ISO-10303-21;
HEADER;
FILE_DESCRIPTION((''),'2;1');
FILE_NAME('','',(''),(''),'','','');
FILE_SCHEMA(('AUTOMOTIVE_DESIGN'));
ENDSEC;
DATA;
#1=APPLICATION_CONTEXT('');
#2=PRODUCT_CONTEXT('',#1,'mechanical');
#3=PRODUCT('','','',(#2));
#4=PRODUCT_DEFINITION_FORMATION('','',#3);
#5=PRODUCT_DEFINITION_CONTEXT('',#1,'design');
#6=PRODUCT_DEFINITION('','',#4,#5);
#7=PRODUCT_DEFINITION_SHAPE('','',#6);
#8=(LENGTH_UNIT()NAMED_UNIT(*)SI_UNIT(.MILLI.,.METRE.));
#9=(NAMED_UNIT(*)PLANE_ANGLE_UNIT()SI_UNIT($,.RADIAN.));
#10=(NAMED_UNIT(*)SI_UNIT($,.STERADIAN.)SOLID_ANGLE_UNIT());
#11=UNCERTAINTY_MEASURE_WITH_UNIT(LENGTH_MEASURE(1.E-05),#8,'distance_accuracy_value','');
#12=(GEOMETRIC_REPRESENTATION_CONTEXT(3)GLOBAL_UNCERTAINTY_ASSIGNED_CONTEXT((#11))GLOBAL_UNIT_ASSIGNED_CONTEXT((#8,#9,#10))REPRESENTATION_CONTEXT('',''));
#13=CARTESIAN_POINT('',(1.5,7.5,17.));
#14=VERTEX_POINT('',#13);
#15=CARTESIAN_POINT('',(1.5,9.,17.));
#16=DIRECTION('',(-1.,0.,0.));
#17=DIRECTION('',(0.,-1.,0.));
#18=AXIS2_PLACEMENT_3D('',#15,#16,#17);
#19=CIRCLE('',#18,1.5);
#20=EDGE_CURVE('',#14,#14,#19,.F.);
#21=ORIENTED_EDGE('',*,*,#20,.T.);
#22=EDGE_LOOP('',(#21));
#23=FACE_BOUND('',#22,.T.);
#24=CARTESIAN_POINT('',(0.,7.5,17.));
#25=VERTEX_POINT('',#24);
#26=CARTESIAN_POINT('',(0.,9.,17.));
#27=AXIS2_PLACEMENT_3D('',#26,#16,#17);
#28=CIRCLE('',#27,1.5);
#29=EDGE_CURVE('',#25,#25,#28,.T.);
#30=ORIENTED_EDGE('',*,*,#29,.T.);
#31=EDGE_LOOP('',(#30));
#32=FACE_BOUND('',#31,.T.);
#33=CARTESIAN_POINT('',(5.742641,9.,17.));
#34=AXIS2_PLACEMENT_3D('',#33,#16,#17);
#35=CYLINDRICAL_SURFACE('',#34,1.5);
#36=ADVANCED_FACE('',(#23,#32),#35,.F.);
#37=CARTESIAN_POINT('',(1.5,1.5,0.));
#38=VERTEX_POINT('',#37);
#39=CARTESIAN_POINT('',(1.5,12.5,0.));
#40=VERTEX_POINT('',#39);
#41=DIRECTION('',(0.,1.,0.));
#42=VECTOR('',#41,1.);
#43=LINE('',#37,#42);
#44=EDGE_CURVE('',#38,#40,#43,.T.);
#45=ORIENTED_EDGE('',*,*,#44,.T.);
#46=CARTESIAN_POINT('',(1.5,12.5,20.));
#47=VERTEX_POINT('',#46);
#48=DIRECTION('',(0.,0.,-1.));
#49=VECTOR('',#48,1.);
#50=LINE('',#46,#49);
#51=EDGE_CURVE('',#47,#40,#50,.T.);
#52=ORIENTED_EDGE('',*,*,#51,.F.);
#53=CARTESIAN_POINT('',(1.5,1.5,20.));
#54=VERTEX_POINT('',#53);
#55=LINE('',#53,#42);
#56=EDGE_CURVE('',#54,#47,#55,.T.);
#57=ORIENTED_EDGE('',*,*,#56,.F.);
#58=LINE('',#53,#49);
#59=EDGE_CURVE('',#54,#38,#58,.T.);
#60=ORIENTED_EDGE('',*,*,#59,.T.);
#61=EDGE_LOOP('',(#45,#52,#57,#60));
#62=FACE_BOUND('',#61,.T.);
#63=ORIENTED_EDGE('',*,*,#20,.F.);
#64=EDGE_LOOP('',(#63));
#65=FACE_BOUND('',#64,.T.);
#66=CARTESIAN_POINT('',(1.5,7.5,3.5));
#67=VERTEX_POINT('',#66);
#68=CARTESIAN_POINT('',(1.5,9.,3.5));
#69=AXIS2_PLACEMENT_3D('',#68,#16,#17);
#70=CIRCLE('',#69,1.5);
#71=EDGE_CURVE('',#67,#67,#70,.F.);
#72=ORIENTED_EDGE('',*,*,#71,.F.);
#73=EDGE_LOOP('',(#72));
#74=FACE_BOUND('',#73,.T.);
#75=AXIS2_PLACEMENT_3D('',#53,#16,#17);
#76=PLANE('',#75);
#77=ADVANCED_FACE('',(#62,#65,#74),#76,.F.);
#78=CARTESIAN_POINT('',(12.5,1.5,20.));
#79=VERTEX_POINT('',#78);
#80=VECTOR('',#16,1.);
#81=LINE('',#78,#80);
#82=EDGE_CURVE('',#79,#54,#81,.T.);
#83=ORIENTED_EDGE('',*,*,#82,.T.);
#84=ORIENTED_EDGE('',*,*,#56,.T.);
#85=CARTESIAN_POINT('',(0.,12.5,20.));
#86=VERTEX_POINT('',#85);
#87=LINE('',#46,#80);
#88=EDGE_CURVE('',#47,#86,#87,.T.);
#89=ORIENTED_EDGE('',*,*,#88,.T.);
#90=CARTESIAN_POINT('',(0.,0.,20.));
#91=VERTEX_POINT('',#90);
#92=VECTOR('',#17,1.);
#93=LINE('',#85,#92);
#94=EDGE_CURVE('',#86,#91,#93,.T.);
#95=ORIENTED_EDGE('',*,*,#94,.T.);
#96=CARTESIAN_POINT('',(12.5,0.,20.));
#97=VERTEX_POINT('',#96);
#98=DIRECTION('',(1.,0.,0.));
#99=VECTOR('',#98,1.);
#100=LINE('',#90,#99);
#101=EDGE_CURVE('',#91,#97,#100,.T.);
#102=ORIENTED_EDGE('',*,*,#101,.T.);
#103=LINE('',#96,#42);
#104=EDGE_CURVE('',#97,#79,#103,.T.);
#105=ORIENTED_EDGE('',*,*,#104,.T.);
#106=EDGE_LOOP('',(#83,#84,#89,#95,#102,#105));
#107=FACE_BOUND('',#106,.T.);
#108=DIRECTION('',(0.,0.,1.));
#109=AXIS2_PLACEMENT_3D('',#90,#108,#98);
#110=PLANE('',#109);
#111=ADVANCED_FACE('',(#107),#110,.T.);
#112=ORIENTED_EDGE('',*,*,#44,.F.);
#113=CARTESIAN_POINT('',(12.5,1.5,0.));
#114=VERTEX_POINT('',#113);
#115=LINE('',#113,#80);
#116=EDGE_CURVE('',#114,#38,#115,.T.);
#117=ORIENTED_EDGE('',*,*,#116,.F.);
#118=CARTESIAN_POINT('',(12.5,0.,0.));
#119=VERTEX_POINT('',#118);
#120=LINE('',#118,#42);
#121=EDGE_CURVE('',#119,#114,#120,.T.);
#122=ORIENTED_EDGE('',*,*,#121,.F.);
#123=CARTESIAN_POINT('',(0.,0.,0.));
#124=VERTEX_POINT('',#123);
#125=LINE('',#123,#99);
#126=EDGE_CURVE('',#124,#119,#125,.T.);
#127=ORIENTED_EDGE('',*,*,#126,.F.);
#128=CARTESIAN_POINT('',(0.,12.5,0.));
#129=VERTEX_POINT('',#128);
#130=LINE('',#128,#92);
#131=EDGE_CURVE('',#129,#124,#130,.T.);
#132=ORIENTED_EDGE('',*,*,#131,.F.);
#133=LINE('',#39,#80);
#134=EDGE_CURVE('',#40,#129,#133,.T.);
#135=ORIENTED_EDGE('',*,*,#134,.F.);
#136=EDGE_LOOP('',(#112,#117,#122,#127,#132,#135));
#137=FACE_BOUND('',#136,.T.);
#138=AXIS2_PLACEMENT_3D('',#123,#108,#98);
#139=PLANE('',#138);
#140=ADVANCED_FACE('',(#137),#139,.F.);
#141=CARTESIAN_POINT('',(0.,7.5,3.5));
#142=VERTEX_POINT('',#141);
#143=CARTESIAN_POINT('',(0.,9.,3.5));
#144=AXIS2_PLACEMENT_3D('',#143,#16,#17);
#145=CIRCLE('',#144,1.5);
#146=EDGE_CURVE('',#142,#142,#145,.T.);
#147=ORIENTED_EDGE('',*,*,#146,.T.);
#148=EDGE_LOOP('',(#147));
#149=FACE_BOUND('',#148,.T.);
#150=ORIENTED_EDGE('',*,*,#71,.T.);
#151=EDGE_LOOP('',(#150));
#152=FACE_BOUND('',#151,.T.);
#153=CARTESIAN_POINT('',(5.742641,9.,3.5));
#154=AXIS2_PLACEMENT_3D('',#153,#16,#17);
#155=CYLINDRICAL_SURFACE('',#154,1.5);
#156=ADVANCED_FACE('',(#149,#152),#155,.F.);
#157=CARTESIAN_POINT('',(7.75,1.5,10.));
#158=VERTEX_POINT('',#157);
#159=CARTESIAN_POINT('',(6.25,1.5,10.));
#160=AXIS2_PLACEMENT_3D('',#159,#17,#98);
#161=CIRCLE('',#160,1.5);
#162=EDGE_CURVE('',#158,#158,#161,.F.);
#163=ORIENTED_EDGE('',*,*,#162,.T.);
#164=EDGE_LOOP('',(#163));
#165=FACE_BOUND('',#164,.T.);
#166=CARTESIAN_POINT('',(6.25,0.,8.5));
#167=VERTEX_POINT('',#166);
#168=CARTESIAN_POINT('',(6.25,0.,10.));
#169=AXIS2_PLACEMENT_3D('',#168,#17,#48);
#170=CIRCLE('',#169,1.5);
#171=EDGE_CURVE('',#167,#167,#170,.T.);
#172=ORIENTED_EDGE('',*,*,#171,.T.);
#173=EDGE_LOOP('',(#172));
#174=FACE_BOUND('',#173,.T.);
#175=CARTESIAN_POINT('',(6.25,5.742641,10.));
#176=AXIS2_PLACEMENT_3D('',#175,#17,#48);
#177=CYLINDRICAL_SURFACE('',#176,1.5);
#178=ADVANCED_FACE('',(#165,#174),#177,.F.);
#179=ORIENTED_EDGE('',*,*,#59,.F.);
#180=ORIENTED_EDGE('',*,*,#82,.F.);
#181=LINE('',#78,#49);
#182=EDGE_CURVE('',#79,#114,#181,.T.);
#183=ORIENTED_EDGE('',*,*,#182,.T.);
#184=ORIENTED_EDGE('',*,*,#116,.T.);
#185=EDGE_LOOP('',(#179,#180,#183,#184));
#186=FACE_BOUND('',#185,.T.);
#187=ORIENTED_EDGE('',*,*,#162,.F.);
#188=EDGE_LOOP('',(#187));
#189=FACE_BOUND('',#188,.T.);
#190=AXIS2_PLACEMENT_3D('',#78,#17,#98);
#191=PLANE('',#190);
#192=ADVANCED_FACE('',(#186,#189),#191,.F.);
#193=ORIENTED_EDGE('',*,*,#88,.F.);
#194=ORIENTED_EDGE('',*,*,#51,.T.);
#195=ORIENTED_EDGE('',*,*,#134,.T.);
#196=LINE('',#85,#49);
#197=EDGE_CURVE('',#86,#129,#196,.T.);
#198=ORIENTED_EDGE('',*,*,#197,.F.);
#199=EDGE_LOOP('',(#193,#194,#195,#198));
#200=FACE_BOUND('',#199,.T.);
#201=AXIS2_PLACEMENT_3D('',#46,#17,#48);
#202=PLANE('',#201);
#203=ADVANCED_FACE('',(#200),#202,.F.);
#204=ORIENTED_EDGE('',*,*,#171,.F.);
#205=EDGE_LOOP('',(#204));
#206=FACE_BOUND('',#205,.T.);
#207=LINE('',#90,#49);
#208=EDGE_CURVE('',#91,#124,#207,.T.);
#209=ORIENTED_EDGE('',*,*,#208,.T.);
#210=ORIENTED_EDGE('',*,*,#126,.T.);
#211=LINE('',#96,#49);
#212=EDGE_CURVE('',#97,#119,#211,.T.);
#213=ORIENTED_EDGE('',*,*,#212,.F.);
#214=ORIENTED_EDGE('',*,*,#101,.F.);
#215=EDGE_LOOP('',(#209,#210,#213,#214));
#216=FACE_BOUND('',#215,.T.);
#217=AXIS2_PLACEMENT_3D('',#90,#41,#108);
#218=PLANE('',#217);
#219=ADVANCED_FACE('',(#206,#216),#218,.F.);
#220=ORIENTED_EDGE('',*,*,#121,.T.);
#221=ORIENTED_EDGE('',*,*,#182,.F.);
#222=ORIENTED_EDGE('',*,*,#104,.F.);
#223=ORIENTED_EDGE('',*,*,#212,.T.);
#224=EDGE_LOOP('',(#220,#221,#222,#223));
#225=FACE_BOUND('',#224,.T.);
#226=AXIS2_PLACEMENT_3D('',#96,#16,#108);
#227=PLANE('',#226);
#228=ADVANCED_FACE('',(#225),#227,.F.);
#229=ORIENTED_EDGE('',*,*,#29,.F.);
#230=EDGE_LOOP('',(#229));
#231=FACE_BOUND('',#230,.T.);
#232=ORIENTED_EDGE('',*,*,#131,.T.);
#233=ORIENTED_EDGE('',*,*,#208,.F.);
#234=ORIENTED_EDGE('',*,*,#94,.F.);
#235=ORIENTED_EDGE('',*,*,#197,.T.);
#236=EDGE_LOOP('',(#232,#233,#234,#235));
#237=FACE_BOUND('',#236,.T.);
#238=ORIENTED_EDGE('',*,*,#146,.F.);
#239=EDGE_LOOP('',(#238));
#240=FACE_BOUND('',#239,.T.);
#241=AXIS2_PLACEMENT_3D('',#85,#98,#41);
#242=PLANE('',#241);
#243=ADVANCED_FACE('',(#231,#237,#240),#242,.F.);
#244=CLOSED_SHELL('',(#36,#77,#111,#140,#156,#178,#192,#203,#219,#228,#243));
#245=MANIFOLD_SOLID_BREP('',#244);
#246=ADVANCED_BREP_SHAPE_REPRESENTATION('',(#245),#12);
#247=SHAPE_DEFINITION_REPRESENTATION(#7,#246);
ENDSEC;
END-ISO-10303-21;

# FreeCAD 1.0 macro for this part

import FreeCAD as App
import Part
import Sketcher
from FreeCAD import Vector

doc = App.newDocument("Part")
params = doc.addObject("Spreadsheet::Sheet", "Params")
for row, (alias, value) in enumerate([
    ("sketch1_width", "11 mm"),
    ("sketch1_width2", "12.5 mm"),
    ("pad1_length", "20 mm"),
    ("sketch2_diameter", "3 mm"),
    ("pocket1_length", "1.5 mm"),
    ("sketch3_diameter", "3 mm"),
    ("pocket2_length", "1.5 mm"),
], start=1):
    params.set(f"A{row}", alias)
    params.set(f"B{row}", "=" + value)
    params.setAlias(f"B{row}", alias)

body = doc.addObject("PartDesign::Body", "Body")

sketch1 = body.newObject("Sketcher::SketchObject", "Sketch")
sketch1.AttachmentSupport = (doc.getObject("XY_Plane"), [""])
sketch1.MapMode = "FlatFace"
sketch1.addGeometry([
    Part.LineSegment(Vector(0, 0, 0), Vector(12.5, 0, 0)),
    Part.LineSegment(Vector(12.5, 0, 0), Vector(12.5, 1.5, 0)),
    Part.LineSegment(Vector(12.5, 1.5, 0), Vector(1.5, 1.5, 0)),
    Part.LineSegment(Vector(1.5, 1.5, 0), Vector(1.5, 12.5, 0)),
    Part.LineSegment(Vector(1.5, 12.5, 0), Vector(0, 12.5, 0)),
    Part.LineSegment(Vector(0, 12.5, 0), Vector(0, 0, 0)),
], False)
sketch1.addConstraint([
    Sketcher.Constraint("Coincident", 0, 2, 1, 1),
    Sketcher.Constraint("Coincident", 1, 2, 2, 1),
    Sketcher.Constraint("Coincident", 2, 2, 3, 1),
    Sketcher.Constraint("Coincident", 3, 2, 4, 1),
    Sketcher.Constraint("Coincident", 4, 2, 5, 1),
    Sketcher.Constraint("Coincident", 5, 2, 0, 1),
    Sketcher.Constraint("Horizontal", 0),
    Sketcher.Constraint("Vertical", 1),
    Sketcher.Constraint("Horizontal", 2),
    Sketcher.Constraint("Vertical", 3),
    Sketcher.Constraint("Horizontal", 4),
    Sketcher.Constraint("Vertical", 5),
    Sketcher.Constraint("Coincident", 5, 2, -1, 1),
    Sketcher.Constraint("Equal", 4, 1),
    Sketcher.Constraint("Equal", 2, 3),
    Sketcher.Constraint("DistanceX", 2, 2, 2, 1, 11.0),
    Sketcher.Constraint("DistanceX", 0, 1, 0, 2, 12.5),
])
sketch1.setExpression("Constraints[15]", "Params.sketch1_width")
sketch1.setExpression("Constraints[16]", "Params.sketch1_width2")
pad1 = body.newObject("PartDesign::Pad", "Pad")
pad1.Profile = sketch1
pad1.setExpression("Length", "Params.pad1_length")

sketch2 = body.newObject("Sketcher::SketchObject", "Sketch001")
sketch2.AttachmentSupport = (doc.getObject("YZ_Plane"), [""])
sketch2.MapMode = "FlatFace"
sketch2.addGeometry([
    Part.Circle(Vector(9, 17, 0), Vector(0, 0, 1), 1.5),
    Part.Circle(Vector(9, 3.5, 0), Vector(0, 0, 1), 1.5),
], False)
sketch2.addConstraint([
    Sketcher.Constraint("Equal", 0, 1),
    Sketcher.Constraint("Vertical", 0, 3, 1, 3),
    Sketcher.Constraint("Diameter", 0, 3.0),
    Sketcher.Constraint("DistanceX", -1, 1, 0, 3, 9.0),
    Sketcher.Constraint("DistanceY", -1, 1, 0, 3, 17.0),
    Sketcher.Constraint("DistanceY", -1, 1, 1, 3, 3.5),
])
sketch2.setExpression("Constraints[2]", "Params.sketch2_diameter")
pocket1 = body.newObject("PartDesign::Pocket", "Pocket")
pocket1.Profile = sketch2
pocket1.setExpression("Length", "Params.pocket1_length")
pocket1.Reversed = True

sketch3 = body.newObject("Sketcher::SketchObject", "Sketch002")
sketch3.AttachmentSupport = (doc.getObject("XZ_Plane"), [""])
sketch3.MapMode = "FlatFace"
sketch3.addGeometry(Part.Circle(Vector(6.2, 10, 0), Vector(0, 0, 1), 1.5), False)
sketch3.addConstraint([
    Sketcher.Constraint("Diameter", 0, 3.0),
    Sketcher.Constraint("DistanceY", -1, 1, 0, 3, 10.0),
    Sketcher.Constraint("DistanceX", -1, 1, 0, 3, 6.25),
])
sketch3.setExpression("Constraints[0]", "Params.sketch3_diameter")
pocket2 = body.newObject("PartDesign::Pocket", "Pocket001")
pocket2.Profile = sketch3
pocket2.setExpression("Length", "Params.pocket2_length")

doc.recompute()
